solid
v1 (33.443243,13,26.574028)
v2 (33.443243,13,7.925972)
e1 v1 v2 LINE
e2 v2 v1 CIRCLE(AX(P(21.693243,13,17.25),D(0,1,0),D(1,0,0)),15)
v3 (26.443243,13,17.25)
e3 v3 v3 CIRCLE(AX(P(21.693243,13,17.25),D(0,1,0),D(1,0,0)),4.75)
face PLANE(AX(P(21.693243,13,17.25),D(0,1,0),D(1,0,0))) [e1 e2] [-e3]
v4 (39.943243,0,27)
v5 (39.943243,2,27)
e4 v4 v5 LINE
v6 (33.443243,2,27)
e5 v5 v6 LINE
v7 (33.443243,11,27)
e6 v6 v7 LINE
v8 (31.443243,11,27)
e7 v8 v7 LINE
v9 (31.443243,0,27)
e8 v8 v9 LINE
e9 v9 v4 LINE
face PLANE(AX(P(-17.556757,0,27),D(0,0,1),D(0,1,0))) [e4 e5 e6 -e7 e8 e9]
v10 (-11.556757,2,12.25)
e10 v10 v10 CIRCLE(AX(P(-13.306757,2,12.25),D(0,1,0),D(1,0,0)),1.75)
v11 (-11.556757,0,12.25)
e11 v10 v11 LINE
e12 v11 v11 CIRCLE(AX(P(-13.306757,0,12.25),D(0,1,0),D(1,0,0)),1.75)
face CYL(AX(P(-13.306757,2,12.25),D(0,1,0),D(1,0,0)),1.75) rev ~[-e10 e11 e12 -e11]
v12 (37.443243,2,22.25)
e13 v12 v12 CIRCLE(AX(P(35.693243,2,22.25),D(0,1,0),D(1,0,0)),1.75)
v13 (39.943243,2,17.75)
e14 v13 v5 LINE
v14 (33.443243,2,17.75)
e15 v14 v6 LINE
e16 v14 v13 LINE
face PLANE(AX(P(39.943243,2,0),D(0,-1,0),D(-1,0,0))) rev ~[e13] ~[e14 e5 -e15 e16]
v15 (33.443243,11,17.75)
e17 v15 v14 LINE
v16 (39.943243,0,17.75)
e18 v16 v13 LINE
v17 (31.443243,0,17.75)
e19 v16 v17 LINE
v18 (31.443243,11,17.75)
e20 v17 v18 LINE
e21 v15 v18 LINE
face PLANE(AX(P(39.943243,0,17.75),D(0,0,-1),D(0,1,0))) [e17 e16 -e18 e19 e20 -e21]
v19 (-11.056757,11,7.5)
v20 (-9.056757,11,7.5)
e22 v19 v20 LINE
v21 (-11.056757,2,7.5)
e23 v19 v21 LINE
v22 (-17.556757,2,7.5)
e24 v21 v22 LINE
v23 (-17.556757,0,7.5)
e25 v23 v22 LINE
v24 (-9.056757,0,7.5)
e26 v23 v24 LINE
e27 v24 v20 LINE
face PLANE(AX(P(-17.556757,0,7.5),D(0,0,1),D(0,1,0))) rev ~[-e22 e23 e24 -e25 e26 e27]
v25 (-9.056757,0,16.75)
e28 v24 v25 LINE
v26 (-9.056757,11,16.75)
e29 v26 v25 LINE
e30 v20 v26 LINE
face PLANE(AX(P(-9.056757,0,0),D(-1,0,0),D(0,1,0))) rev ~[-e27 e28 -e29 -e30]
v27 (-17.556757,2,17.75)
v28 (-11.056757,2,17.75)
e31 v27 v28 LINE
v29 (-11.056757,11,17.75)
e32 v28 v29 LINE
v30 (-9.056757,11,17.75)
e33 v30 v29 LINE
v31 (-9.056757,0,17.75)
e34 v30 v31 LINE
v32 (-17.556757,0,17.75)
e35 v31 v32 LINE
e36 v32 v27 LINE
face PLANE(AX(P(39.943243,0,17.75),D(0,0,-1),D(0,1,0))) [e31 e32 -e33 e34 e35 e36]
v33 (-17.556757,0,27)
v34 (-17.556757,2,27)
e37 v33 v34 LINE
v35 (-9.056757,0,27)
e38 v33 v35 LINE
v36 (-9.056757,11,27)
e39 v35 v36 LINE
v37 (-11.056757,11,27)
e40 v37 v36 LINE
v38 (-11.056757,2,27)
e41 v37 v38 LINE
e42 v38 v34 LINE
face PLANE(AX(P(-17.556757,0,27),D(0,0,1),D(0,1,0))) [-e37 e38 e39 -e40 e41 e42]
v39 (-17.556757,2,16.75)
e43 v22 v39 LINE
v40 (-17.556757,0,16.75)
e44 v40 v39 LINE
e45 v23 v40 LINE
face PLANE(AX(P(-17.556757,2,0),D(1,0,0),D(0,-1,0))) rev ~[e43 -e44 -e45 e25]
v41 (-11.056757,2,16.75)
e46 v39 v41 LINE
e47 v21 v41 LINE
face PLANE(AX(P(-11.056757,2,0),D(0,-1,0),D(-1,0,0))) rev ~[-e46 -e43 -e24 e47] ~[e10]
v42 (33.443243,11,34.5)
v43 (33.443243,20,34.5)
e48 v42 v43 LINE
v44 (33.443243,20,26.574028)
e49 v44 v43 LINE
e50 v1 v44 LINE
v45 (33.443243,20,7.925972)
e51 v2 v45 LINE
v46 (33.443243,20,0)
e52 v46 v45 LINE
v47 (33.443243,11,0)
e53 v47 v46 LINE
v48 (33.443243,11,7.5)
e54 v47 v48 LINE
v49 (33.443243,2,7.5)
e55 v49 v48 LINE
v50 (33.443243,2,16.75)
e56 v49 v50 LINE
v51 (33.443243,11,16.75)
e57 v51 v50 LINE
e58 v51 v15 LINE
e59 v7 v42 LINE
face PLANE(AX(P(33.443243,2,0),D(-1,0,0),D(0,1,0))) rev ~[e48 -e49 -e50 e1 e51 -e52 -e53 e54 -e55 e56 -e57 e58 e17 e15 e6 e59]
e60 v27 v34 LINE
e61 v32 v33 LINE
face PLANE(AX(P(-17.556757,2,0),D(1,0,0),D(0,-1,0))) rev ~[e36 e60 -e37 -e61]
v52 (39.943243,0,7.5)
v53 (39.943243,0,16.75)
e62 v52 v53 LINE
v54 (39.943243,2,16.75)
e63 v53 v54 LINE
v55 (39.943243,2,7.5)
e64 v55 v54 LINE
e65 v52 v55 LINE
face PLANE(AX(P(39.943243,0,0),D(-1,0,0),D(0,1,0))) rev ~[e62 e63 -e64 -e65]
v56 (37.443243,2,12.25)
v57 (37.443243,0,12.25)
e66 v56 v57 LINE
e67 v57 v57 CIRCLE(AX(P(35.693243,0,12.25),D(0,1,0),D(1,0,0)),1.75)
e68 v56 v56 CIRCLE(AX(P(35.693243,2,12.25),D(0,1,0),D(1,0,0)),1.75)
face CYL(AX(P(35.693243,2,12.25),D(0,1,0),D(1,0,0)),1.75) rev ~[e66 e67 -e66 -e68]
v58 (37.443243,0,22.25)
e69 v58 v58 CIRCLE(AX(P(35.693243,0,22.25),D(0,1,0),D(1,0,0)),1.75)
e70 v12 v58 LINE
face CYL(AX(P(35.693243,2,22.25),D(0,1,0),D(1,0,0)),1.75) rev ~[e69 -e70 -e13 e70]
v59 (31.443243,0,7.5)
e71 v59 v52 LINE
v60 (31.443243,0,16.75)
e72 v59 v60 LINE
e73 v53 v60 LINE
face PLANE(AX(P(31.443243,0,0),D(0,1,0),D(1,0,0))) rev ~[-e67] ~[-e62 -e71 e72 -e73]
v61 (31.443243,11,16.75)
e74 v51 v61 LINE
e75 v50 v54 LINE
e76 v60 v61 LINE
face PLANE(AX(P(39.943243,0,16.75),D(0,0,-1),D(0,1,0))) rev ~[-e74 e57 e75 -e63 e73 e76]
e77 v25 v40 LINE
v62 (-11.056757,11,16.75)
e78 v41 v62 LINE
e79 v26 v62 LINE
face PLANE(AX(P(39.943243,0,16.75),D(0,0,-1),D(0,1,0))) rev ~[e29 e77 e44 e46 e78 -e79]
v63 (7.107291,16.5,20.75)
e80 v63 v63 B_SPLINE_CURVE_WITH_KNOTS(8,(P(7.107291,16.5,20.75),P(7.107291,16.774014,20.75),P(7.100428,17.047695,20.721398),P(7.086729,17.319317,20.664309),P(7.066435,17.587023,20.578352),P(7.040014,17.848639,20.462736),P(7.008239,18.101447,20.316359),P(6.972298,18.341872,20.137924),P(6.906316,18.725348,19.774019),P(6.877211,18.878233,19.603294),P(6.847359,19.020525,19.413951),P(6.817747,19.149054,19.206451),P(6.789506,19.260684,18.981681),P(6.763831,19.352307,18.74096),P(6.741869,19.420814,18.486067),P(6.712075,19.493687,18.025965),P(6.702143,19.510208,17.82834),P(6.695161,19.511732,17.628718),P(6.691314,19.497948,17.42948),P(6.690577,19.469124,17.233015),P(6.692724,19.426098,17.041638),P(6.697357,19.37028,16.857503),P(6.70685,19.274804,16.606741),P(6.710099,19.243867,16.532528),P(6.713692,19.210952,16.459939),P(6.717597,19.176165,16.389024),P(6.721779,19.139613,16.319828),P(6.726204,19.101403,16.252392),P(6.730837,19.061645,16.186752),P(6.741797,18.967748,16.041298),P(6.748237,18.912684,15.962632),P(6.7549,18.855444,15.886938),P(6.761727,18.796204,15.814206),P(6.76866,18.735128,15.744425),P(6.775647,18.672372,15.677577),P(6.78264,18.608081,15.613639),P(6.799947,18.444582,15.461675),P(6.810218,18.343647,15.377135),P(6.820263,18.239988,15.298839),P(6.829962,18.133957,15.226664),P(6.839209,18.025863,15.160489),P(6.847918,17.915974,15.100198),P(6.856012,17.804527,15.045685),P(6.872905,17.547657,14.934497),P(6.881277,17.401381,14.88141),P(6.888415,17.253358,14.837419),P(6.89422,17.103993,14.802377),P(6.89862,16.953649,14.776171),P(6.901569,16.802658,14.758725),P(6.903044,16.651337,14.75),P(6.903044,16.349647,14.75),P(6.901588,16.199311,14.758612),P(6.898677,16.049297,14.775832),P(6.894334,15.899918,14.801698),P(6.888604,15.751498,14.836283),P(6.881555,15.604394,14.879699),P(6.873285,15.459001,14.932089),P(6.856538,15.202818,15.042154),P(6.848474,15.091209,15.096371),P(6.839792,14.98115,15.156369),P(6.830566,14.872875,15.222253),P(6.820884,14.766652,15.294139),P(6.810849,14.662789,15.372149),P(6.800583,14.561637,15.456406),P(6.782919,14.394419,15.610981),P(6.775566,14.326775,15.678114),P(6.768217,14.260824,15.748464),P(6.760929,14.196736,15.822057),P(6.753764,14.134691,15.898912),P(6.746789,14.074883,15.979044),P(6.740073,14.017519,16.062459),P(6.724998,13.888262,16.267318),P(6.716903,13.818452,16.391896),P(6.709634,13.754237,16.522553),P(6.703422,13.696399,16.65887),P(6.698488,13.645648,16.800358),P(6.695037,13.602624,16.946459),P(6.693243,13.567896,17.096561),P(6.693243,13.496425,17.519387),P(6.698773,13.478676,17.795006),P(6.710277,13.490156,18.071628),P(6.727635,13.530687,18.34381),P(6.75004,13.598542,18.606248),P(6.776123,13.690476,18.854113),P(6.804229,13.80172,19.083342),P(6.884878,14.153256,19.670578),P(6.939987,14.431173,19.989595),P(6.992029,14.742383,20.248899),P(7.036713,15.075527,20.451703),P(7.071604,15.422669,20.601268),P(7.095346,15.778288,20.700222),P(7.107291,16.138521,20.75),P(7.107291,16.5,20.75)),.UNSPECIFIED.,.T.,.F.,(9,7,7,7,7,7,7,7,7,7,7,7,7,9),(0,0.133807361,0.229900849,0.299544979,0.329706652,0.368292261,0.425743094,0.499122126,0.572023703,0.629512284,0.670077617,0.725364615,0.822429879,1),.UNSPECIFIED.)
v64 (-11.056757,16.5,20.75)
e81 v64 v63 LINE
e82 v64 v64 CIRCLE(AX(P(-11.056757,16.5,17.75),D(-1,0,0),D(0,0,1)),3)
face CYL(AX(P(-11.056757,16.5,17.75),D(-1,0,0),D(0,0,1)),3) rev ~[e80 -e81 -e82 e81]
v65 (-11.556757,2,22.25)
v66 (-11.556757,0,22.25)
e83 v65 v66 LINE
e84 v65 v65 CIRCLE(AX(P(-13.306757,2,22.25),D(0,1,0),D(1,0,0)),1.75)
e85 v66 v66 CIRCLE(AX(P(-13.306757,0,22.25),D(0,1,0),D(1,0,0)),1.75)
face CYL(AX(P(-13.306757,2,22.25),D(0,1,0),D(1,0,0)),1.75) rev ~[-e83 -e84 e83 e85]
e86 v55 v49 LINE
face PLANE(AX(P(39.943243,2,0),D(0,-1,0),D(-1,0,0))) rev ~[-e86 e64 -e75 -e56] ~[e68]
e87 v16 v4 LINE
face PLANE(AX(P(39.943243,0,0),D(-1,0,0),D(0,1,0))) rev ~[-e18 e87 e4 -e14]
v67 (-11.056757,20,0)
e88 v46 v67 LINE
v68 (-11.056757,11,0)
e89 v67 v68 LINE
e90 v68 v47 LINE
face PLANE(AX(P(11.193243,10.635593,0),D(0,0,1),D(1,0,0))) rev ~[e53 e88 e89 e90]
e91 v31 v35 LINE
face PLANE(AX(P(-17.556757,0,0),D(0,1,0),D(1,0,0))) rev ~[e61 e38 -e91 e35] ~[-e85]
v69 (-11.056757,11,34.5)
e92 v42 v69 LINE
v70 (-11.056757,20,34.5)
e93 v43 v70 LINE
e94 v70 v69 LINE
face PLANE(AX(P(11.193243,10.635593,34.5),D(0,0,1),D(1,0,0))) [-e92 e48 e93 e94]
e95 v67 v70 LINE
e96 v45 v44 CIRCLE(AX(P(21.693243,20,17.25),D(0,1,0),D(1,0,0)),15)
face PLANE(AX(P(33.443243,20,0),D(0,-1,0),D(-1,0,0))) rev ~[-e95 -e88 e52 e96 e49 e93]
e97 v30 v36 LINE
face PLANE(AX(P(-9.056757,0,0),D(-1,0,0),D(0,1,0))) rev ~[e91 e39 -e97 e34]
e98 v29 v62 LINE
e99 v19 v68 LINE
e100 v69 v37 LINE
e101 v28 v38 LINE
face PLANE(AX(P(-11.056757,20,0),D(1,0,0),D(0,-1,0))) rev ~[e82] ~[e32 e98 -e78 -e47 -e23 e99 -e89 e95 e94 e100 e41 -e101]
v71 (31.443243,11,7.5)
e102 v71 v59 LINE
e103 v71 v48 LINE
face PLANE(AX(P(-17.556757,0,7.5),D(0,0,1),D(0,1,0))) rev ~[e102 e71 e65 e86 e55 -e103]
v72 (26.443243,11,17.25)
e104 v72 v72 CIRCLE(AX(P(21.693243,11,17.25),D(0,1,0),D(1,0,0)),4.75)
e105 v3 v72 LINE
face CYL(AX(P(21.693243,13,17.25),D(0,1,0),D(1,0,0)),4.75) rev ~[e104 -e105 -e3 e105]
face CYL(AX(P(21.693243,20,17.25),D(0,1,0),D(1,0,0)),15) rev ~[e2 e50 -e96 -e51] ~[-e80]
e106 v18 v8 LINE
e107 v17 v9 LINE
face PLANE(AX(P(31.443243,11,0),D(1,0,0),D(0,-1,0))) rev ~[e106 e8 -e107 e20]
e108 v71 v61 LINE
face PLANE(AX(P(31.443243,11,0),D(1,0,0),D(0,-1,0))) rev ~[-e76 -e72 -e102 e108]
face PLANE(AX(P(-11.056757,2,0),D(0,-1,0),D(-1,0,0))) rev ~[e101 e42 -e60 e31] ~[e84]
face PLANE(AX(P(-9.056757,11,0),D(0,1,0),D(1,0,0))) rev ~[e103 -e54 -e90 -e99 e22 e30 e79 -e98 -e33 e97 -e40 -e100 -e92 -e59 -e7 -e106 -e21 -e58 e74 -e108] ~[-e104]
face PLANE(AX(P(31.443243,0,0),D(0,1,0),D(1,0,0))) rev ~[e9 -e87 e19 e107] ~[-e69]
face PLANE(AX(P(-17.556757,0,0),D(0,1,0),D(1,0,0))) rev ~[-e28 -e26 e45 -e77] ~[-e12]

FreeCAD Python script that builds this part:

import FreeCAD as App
import Part
import Sketcher
from FreeCAD import Vector
Q = App.Units.Quantity

doc = App.newDocument("Part")
params = doc.addObject("Spreadsheet::Sheet", "Params")
for row, (alias, value) in enumerate([
    ("sketch1_height", "11 mm"),
    ("sketch1_height2", "2 mm"),
    ("sketch1_height3", "18 mm"),
    ("sketch1_width", "40.5 mm"),
    ("sketch1_width2", "8.5 mm"),
    ("pad1_length", "34.5 mm"),
    ("sketch2_diameter", "30 mm"),
    ("pocket1_length", "7 mm"),
    ("sketch3_width", "11 mm"),
    ("sketch3_height", "7.5 mm"),
    ("sketch4_diameter", "9.5 mm"),
    ("sketch5_width", "11 mm"),
    ("sketch5_height", "1 mm"),
    ("sketch6_diameter", "6 mm"),
    ("sketch7_diameter", "3.5 mm"),
], start=1):
    params.set(f"A{row}", alias)
    params.set(f"B{row}", "=" + value)
    params.setAlias(f"B{row}", alias)

body = doc.addObject("PartDesign::Body", "Body")

# Sketch on XY plane
sketch1 = body.newObject("Sketcher::SketchObject", "Sketch")
sketch1.AttachmentSupport = (doc.getObject("XY_Plane"), [""])
sketch1.MapMode = "FlatFace"
sketch1.addGeometry([
    Part.LineSegment(Vector(-9.1, 11, 0), Vector(31.4, 11, 0)),  # 0
    Part.LineSegment(Vector(31.4, 11, 0), Vector(31.4, 0, 0)),  # 1
    Part.LineSegment(Vector(31.4, 0, 0), Vector(39.9, 0, 0)),  # 2
    Part.LineSegment(Vector(39.9, 0, 0), Vector(39.9, 2, 0)),  # 3
    Part.LineSegment(Vector(39.9, 2, 0), Vector(33.4, 2, 0)),  # 4
    Part.LineSegment(Vector(33.4, 2, 0), Vector(33.4, 20, 0)),  # 5
    Part.LineSegment(Vector(33.4, 20, 0), Vector(-11.1, 20, 0)),  # 6
    Part.LineSegment(Vector(-11.1, 20, 0), Vector(-11.1, 2, 0)),  # 7
    Part.LineSegment(Vector(-11.1, 2, 0), Vector(-17.6, 2, 0)),  # 8
    Part.LineSegment(Vector(-17.6, 2, 0), Vector(-17.6, 0, 0)),  # 9
    Part.LineSegment(Vector(-17.6, 0, 0), Vector(-9.1, 0, 0)),  # 10
    Part.LineSegment(Vector(-9.1, 0, 0), Vector(-9.1, 11, 0)),  # 11
], False)
sketch1.addConstraint([
    Sketcher.Constraint("Coincident", 0, 2, 1, 1),
    Sketcher.Constraint("Coincident", 1, 2, 2, 1),
    Sketcher.Constraint("Coincident", 2, 2, 3, 1),
    Sketcher.Constraint("Coincident", 3, 2, 4, 1),
    Sketcher.Constraint("Coincident", 4, 2, 5, 1),
    Sketcher.Constraint("Coincident", 5, 2, 6, 1),
    Sketcher.Constraint("Coincident", 6, 2, 7, 1),
    Sketcher.Constraint("Coincident", 7, 2, 8, 1),
    Sketcher.Constraint("Coincident", 8, 2, 9, 1),
    Sketcher.Constraint("Coincident", 9, 2, 10, 1),
    Sketcher.Constraint("Coincident", 10, 2, 11, 1),
    Sketcher.Constraint("Coincident", 11, 2, 0, 1),
    Sketcher.Constraint("Horizontal", 0),
    Sketcher.Constraint("Vertical", 1),
    Sketcher.Constraint("Horizontal", 2),
    Sketcher.Constraint("Vertical", 3),
    Sketcher.Constraint("Horizontal", 4),
    Sketcher.Constraint("Vertical", 5),
    Sketcher.Constraint("Horizontal", 6),
    Sketcher.Constraint("Vertical", 7),
    Sketcher.Constraint("Horizontal", 8),
    Sketcher.Constraint("Vertical", 9),
    Sketcher.Constraint("Horizontal", 10),
    Sketcher.Constraint("Vertical", 11),
    Sketcher.Constraint("PointOnObject", 1, 2, -1),
    Sketcher.Constraint("PointOnObject", 9, 2, -1),
    Sketcher.Constraint("Horizontal", 4, 2, 7, 2),
    Sketcher.Constraint("Equal", 4, 8),
    Sketcher.Constraint("Equal", 2, 10),
    Sketcher.Constraint("DistanceY", 1, 2, 1, 1, Q("11 mm")),
    Sketcher.Constraint("DistanceY", 3, 1, 3, 2, Q("2 mm")),
    Sketcher.Constraint("DistanceY", 5, 1, 5, 2, Q("18 mm")),
    Sketcher.Constraint("DistanceX", 0, 1, 0, 2, Q("40.5 mm")),
    Sketcher.Constraint("DistanceX", 2, 1, 2, 2, Q("8.5 mm")),
    Sketcher.Constraint("DistanceX", 4, 2, 4, 1, Q("6.5 mm")),
    Sketcher.Constraint("DistanceX", -1, 1, 0, 2, Q("31.443243 mm")),
])
sketch1.setExpression("Constraints[29]", "Params.sketch1_height")
sketch1.setExpression("Constraints[30]", "Params.sketch1_height2")
sketch1.setExpression("Constraints[31]", "Params.sketch1_height3")
sketch1.setExpression("Constraints[32]", "Params.sketch1_width")
sketch1.setExpression("Constraints[33]", "Params.sketch1_width2")
pad1 = body.newObject("PartDesign::Pad", "Pad")
pad1.Profile = sketch1
pad1.setExpression("Length", "Params.pad1_length")

# Sketch on XZ plane
sketch2 = body.newObject("Sketcher::SketchObject", "Sketch001")
sketch2.AttachmentSupport = (doc.getObject("XZ_Plane"), [""])
sketch2.MapMode = "FlatFace"
sketch2.AttachmentOffset = App.Placement(Vector(0, 0, -20), App.Rotation())
sketch2.addGeometry(Part.Circle(Vector(22, 17, 0), Vector(0, 0, 1), 15), False)
sketch2.addConstraint([
    Sketcher.Constraint("Diameter", 0, Q("30 mm")),
    Sketcher.Constraint("DistanceY", -1, 1, 0, 3, Q("17.25 mm")),
    Sketcher.Constraint("DistanceX", -1, 1, 0, 3, Q("21.693243 mm")),
])
sketch2.setExpression("Constraints[0]", "Params.sketch2_diameter")
pocket1 = body.newObject("PartDesign::Pocket", "Pocket")
pocket1.Profile = sketch2
pocket1.setExpression("Length", "Params.pocket1_length")
pocket1.Reversed = True

# Sketch on YZ plane
sketch3 = body.newObject("Sketcher::SketchObject", "Sketch002")
sketch3.AttachmentSupport = (doc.getObject("YZ_Plane"), [""])
sketch3.MapMode = "FlatFace"
sketch3.AttachmentOffset = App.Placement(Vector(0, 0, -17.556757), App.Rotation())
sketch3.addGeometry([
    Part.LineSegment(Vector(11, 0, 0), Vector(0, 0, 0)),  # 0
    Part.LineSegment(Vector(0, 0, 0), Vector(0, 8, 0)),  # 1
    Part.LineSegment(Vector(0, 8, 0), Vector(11, 8, 0)),  # 2
    Part.LineSegment(Vector(11, 8, 0), Vector(11, 0, 0)),  # 3
    Part.LineSegment(Vector(11, 27, 0), Vector(0, 27, 0)),  # 4
    Part.LineSegment(Vector(0, 27, 0), Vector(0, 34, 0)),  # 5
    Part.LineSegment(Vector(0, 34, 0), Vector(11, 34, 0)),  # 6
    Part.LineSegment(Vector(11, 34, 0), Vector(11, 27, 0)),  # 7
], False)
sketch3.addConstraint([
    Sketcher.Constraint("Coincident", 0, 2, 1, 1),
    Sketcher.Constraint("Coincident", 1, 2, 2, 1),
    Sketcher.Constraint("Coincident", 2, 2, 3, 1),
    Sketcher.Constraint("Coincident", 3, 2, 0, 1),
    Sketcher.Constraint("Coincident", 4, 2, 5, 1),
    Sketcher.Constraint("Coincident", 5, 2, 6, 1),
    Sketcher.Constraint("Coincident", 6, 2, 7, 1),
    Sketcher.Constraint("Coincident", 7, 2, 4, 1),
    Sketcher.Constraint("Horizontal", 0),
    Sketcher.Constraint("Vertical", 1),
    Sketcher.Constraint("Horizontal", 2),
    Sketcher.Constraint("Vertical", 3),
    Sketcher.Constraint("Horizontal", 4),
    Sketcher.Constraint("Vertical", 5),
    Sketcher.Constraint("Horizontal", 6),
    Sketcher.Constraint("Vertical", 7),
    Sketcher.Constraint("Coincident", 0, 2, -1, 1),
    Sketcher.Constraint("PointOnObject", 4, 2, -2),
    Sketcher.Constraint("Vertical", 3, 2, 6, 2),
    Sketcher.Constraint("Equal", 3, 5),
    Sketcher.Constraint("DistanceX", 0, 2, 0, 1, Q("11 mm")),
    Sketcher.Constraint("DistanceY", 1, 1, 1, 2, Q("7.5 mm")),
    Sketcher.Constraint("DistanceY", -1, 1, 4, 2, Q("27 mm")),
])
sketch3.setExpression("Constraints[20]", "Params.sketch3_width")
sketch3.setExpression("Constraints[21]", "Params.sketch3_height")
pocket2 = body.newObject("PartDesign::Pocket", "Pocket001")
pocket2.Profile = sketch3
pocket2.Type = "ThroughAll"
pocket2.Reversed = True

# Sketch on XZ plane
sketch4 = body.newObject("Sketcher::SketchObject", "Sketch003")
sketch4.AttachmentSupport = (doc.getObject("XZ_Plane"), [""])
sketch4.MapMode = "FlatFace"
sketch4.AttachmentOffset = App.Placement(Vector(0, 0, -13), App.Rotation())
sketch4.addGeometry(Part.Circle(Vector(21.7, 17.2, 0), Vector(0, 0, 1), 4.8), False)
sketch4.addConstraint([
    Sketcher.Constraint("Diameter", 0, Q("9.5 mm")),
    Sketcher.Constraint("DistanceY", -1, 1, 0, 3, Q("17.25 mm")),
    Sketcher.Constraint("DistanceX", -1, 1, 0, 3, Q("21.693243 mm")),
])
sketch4.setExpression("Constraints[0]", "Params.sketch4_diameter")
pocket3 = body.newObject("PartDesign::Pocket", "Pocket002")
pocket3.Profile = sketch4
pocket3.Type = "ThroughAll"
pocket3.Reversed = True

# Sketch on YZ plane
sketch5 = body.newObject("Sketcher::SketchObject", "Sketch004")
sketch5.AttachmentSupport = (doc.getObject("YZ_Plane"), [""])
sketch5.MapMode = "FlatFace"
sketch5.AttachmentOffset = App.Placement(Vector(0, 0, 39.943243), App.Rotation())
sketch5.addGeometry([
    Part.LineSegment(Vector(11, 17.8, 0), Vector(0, 17.8, 0)),
    Part.LineSegment(Vector(0, 17.8, 0), Vector(0, 16.8, 0)),
    Part.LineSegment(Vector(0, 16.8, 0), Vector(11, 16.8, 0)),
    Part.LineSegment(Vector(11, 16.8, 0), Vector(11, 17.8, 0)),
], False)
sketch5.addConstraint([
    Sketcher.Constraint("Coincident", 0, 2, 1, 1),
    Sketcher.Constraint("Coincident", 1, 2, 2, 1),
    Sketcher.Constraint("Coincident", 2, 2, 3, 1),
    Sketcher.Constraint("Coincident", 3, 2, 0, 1),
    Sketcher.Constraint("Horizontal", 0),
    Sketcher.Constraint("Vertical", 1),
    Sketcher.Constraint("Horizontal", 2),
    Sketcher.Constraint("Vertical", 3),
    Sketcher.Constraint("PointOnObject", 0, 2, -2),
    Sketcher.Constraint("DistanceX", 0, 2, 0, 1, Q("11 mm")),
    Sketcher.Constraint("DistanceY", 1, 2, 1, 1, Q("1 mm")),
    Sketcher.Constraint("DistanceY", -1, 1, 0, 2, Q("17.75 mm")),
])
sketch5.setExpression("Constraints[9]", "Params.sketch5_width")
sketch5.setExpression("Constraints[10]", "Params.sketch5_height")
pocket4 = body.newObject("PartDesign::Pocket", "Pocket003")
pocket4.Profile = sketch5
pocket4.Type = "ThroughAll"

# Sketch on YZ plane
sketch6 = body.newObject("Sketcher::SketchObject", "Sketch005")
sketch6.AttachmentSupport = (doc.getObject("YZ_Plane"), [""])
sketch6.MapMode = "FlatFace"
sketch6.AttachmentOffset = App.Placement(Vector(0, 0, -11.056757), App.Rotation())
sketch6.addGeometry(Part.Circle(Vector(16.5, 17.8, 0), Vector(0, 0, 1), 3), False)
sketch6.addConstraint([
    Sketcher.Constraint("Diameter", 0, Q("6 mm")),
    Sketcher.Constraint("DistanceX", -1, 1, 0, 3, Q("16.5 mm")),
    Sketcher.Constraint("DistanceY", -1, 1, 0, 3, Q("17.75 mm")),
])
sketch6.setExpression("Constraints[0]", "Params.sketch6_diameter")
pocket5 = body.newObject("PartDesign::Pocket", "Pocket004")
pocket5.Profile = sketch6
pocket5.Type = "UpToFirst"
pocket5.Reversed = True

# Sketch on XZ plane
sketch7 = body.newObject("Sketcher::SketchObject", "Sketch006")
sketch7.AttachmentSupport = (doc.getObject("XZ_Plane"), [""])
sketch7.MapMode = "FlatFace"
sketch7.AttachmentOffset = App.Placement(Vector(0, 0, -2), App.Rotation())
sketch7.addGeometry([
    Part.Circle(Vector(-13.3, 12.2, 0), Vector(0, 0, 1), 1.8),
    Part.Circle(Vector(-13.3, 22.2, 0), Vector(0, 0, 1), 1.8),
    Part.Circle(Vector(35.7, 22.2, 0), Vector(0, 0, 1), 1.8),
    Part.Circle(Vector(35.7, 12.2, 0), Vector(0, 0, 1), 1.8),
], False)
sketch7.addConstraint([
    Sketcher.Constraint("Equal", 0, 1),
    Sketcher.Constraint("Equal", 1, 2),
    Sketcher.Constraint("Equal", 2, 3),
    Sketcher.Constraint("Horizontal", 1, 3, 2, 3),
    Sketcher.Constraint("Horizontal", 0, 3, 3, 3),
    Sketcher.Constraint("Vertical", 0, 3, 1, 3),
    Sketcher.Constraint("Vertical", 2, 3, 3, 3),
    Sketcher.Constraint("Diameter", 0, Q("3.5 mm")),
    Sketcher.Constraint("DistanceY", 0, 3, 1, 3, Q("10 mm")),
    Sketcher.Constraint("DistanceX", 1, 3, 2, 3, Q("49 mm")),
    Sketcher.Constraint("DistanceY", -1, 1, 0, 3, Q("12.25 mm")),
    Sketcher.Constraint("DistanceX", 0, 3, -1, 1, Q("13.306757 mm")),
])
sketch7.setExpression("Constraints[7]", "Params.sketch7_diameter")
pocket6 = body.newObject("PartDesign::Pocket", "Pocket005")
pocket6.Profile = sketch7
pocket6.Type = "ThroughAll"
pocket6.Reversed = True

doc.recompute()
